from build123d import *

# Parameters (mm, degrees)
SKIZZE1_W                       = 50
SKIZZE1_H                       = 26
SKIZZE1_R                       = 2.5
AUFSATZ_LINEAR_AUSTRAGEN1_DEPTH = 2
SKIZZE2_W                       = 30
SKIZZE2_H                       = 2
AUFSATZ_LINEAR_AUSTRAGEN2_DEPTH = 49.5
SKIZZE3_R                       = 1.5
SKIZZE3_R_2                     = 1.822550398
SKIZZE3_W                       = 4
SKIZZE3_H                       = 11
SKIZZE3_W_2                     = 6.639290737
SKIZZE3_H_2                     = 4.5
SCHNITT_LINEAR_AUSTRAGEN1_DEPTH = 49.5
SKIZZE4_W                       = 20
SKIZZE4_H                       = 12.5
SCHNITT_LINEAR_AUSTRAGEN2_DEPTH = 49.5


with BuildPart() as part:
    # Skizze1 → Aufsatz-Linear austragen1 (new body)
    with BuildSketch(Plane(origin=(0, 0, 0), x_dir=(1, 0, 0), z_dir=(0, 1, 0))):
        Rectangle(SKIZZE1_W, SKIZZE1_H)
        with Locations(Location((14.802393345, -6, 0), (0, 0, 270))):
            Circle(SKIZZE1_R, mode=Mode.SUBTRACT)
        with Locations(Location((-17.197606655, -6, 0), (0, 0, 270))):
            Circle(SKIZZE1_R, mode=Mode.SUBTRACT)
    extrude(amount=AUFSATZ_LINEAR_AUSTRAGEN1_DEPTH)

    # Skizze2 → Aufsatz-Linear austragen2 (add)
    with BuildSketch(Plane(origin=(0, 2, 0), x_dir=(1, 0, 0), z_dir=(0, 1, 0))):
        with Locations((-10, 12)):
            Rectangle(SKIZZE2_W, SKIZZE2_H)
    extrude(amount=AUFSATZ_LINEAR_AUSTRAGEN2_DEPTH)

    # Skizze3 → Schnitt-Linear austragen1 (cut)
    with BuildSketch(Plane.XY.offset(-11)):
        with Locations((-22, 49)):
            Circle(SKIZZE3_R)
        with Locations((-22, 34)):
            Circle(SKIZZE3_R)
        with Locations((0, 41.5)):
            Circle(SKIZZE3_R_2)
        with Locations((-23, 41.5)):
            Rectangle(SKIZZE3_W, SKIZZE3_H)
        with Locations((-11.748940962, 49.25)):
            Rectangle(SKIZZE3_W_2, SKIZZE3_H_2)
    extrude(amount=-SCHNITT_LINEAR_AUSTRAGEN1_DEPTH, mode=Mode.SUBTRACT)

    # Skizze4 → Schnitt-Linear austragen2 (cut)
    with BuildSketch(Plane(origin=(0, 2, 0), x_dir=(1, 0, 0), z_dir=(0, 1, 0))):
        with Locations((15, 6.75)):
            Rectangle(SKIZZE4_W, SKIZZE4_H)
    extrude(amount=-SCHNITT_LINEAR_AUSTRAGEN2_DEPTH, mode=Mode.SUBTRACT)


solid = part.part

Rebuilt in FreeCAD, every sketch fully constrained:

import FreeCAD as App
import Part
import Sketcher
from FreeCAD import Vector
Q = App.Units.Quantity


def add_polygon(sketch, points):
    """Adds a closed chain of lines whose ends are joined by coincident constraints."""
    first, n = sketch.GeometryCount, len(points)
    for a, b in zip(points, points[1:] + points[:1]):
        sketch.addGeometry(Part.LineSegment(App.Vector(*a, 0), App.Vector(*b, 0)), False)
    for i in range(n):
        sketch.addConstraint(Sketcher.Constraint("Coincident", first + i, 2, first + (i + 1) % n, 1))

doc = App.newDocument("Part")
body = doc.addObject("PartDesign::Body", "Body")

# Sketch on XZ plane
sketch1 = doc.addObject("Sketcher::SketchObject", "Sketch")
body.addObject(sketch1)
sketch1.AttachmentSupport = (doc.XZ_Plane, [""])
sketch1.MapMode = "FlatFace"
add_polygon(sketch1, [(-25, -13), (-25, 13), (25, 13), (25, -13)])  # lines 0-3
sketch1.addGeometry(Part.Circle(Vector(-17.197607, 6, 0), Vector(0, 0, 1), 2.5), False)  # 4
sketch1.addGeometry(Part.Circle(Vector(14.802393, 6, 0), Vector(0, 0, 1), 2.5), False)  # 5
sketch1.addConstraint([
    Sketcher.Constraint("Vertical", 0),
    Sketcher.Constraint("Horizontal", 1),
    Sketcher.Constraint("Vertical", 2),
    Sketcher.Constraint("Horizontal", 3),
    Sketcher.Constraint("Equal", 4, 5),
    Sketcher.Constraint("Symmetric", 0, 2, 2, 2, -1, 1),
    Sketcher.Constraint("Horizontal", 4, 3, 5, 3),
    Sketcher.Constraint("Diameter", 4, Q("5 mm")),
    Sketcher.Constraint("DistanceX", 1, 1, 1, 2, Q("50 mm")),
    Sketcher.Constraint("DistanceY", 0, 1, 0, 2, Q("26 mm")),
    Sketcher.Constraint("DistanceY", -1, 1, 4, 3, Q("6 mm")),
    Sketcher.Constraint("DistanceX", 4, 3, 5, 3, Q("32 mm")),
    Sketcher.Constraint("DistanceX", 4, 3, -1, 1, Q("17.197607 mm")),
])
pad1 = doc.addObject("PartDesign::Pad", "Pad")
body.addObject(pad1)
pad1.Profile = sketch1
pad1.Length = 2
pad1.Reversed = True

# Sketch on XZ plane
sketch2 = doc.addObject("Sketcher::SketchObject", "Sketch001")
body.addObject(sketch2)
sketch2.AttachmentSupport = (doc.XZ_Plane, [""])
sketch2.MapMode = "FlatFace"
sketch2.AttachmentOffset = App.Placement(Vector(0, 0, -2), App.Rotation())
add_polygon(sketch2, [(-25, -13), (-25, -11), (5, -11), (5, -13)])  # lines 0-3
sketch2.addConstraint([
    Sketcher.Constraint("Vertical", 0),
    Sketcher.Constraint("Horizontal", 1),
    Sketcher.Constraint("Vertical", 2),
    Sketcher.Constraint("Horizontal", 3),
    Sketcher.Constraint("DistanceX", 1, 1, 1, 2, Q("30 mm")),
    Sketcher.Constraint("DistanceY", 0, 1, 0, 2, Q("2 mm")),
    Sketcher.Constraint("DistanceX", 0, 2, -1, 1, Q("25 mm")),
    Sketcher.Constraint("DistanceY", 0, 2, -1, 1, Q("11 mm")),
])
pad2 = doc.addObject("PartDesign::Pad", "Pad001")
body.addObject(pad2)
pad2.Profile = sketch2
pad2.Length = 49.5
pad2.Reversed = True

# Sketch on XY plane
sketch3 = doc.addObject("Sketcher::SketchObject", "Sketch002")
body.addObject(sketch3)
sketch3.AttachmentSupport = (doc.XY_Plane, [""])
sketch3.MapMode = "FlatFace"
sketch3.AttachmentOffset = App.Placement(Vector(0, 0, -11), App.Rotation())
sketch3.addGeometry(Part.Circle(Vector(-22, 49, 0), Vector(0, 0, 1), 1.5), False)  # 0
sketch3.addGeometry(Part.Circle(Vector(-22, 34, 0), Vector(0, 0, 1), 1.5), False)  # 1
sketch3.addGeometry(Part.Circle(Vector(0, 41.5, 0), Vector(0, 0, 1), 1.82255), False)  # 2
add_polygon(sketch3, [(-25, 47), (-25, 36), (-21, 36), (-21, 47)])  # lines 3-6
add_polygon(sketch3, [(-15.068586, 51.5), (-15.068586, 47), (-8.429296, 47), (-8.429296, 51.5)])  # lines 7-10
sketch3.addConstraint([
    Sketcher.Constraint("Vertical", 3),
    Sketcher.Constraint("Horizontal", 4),
    Sketcher.Constraint("Vertical", 5),
    Sketcher.Constraint("Horizontal", 6),
    Sketcher.Constraint("Vertical", 7),
    Sketcher.Constraint("Horizontal", 8),
    Sketcher.Constraint("Vertical", 9),
    Sketcher.Constraint("Horizontal", 10),
    Sketcher.Constraint("Equal", 0, 1),
    Sketcher.Constraint("PointOnObject", 2, 3, -2),
    Sketcher.Constraint("Horizontal", 6, 2, 7, 2),
    Sketcher.Constraint("Vertical", 0, 3, 1, 3),
    Sketcher.Constraint("Diameter", 0, Q("3 mm")),
    Sketcher.Constraint("DistanceX", 4, 1, 4, 2, Q("4 mm")),
    Sketcher.Constraint("DistanceY", 3, 2, 3, 1, Q("11 mm")),
    Sketcher.Constraint("DistanceY", 7, 2, 7, 1, Q("4.5 mm")),
    Sketcher.Constraint("DistanceX", 0, 3, -1, 1, Q("22 mm")),
    Sketcher.Constraint("DistanceY", -1, 1, 0, 3, Q("49 mm")),
    Sketcher.Constraint("DistanceY", -1, 1, 1, 3, Q("34 mm")),
    Sketcher.Constraint("DistanceX", 3, 2, -1, 1, Q("25 mm")),
    Sketcher.Constraint("DistanceY", -1, 1, 3, 2, Q("36 mm")),
    Sketcher.Constraint("DistanceY", 2, 3, 9, 2, Q("10 mm")),
    Sketcher.Constraint("Diameter", 2, Q("3.645101 mm")),
    Sketcher.Constraint("DistanceX", 8, 1, 8, 2, Q("6.639291 mm")),
    Sketcher.Constraint("DistanceX", 7, 2, -1, 1, Q("15.068586 mm")),
])
pocket1 = doc.addObject("PartDesign::Pocket", "Pocket")
body.addObject(pocket1)
pocket1.Profile = sketch3
pocket1.Length = 49.5

# Sketch on XZ plane
sketch4 = doc.addObject("Sketcher::SketchObject", "Sketch003")
body.addObject(sketch4)
sketch4.AttachmentSupport = (doc.XZ_Plane, [""])
sketch4.MapMode = "FlatFace"
sketch4.AttachmentOffset = App.Placement(Vector(0, 0, -2), App.Rotation())
add_polygon(sketch4, [(5, -13), (5, -0.5), (25, -0.5), (25, -13)])  # lines 0-3
sketch4.addConstraint([
    Sketcher.Constraint("Vertical", 0),
    Sketcher.Constraint("Horizontal", 1),
    Sketcher.Constraint("Vertical", 2),
    Sketcher.Constraint("Horizontal", 3),
    Sketcher.Constraint("DistanceX", 1, 1, 1, 2, Q("20 mm")),
    Sketcher.Constraint("DistanceY", 0, 1, 0, 2, Q("12.5 mm")),
    Sketcher.Constraint("DistanceX", -1, 1, 0, 2, Q("5 mm")),
    Sketcher.Constraint("DistanceY", 2, 2, -1, 1, Q("13 mm")),
])
pocket2 = doc.addObject("PartDesign::Pocket", "Pocket001")
body.addObject(pocket2)
pocket2.Profile = sketch4
pocket2.Length = 49.5
pocket2.Reversed = True

doc.recompute()
